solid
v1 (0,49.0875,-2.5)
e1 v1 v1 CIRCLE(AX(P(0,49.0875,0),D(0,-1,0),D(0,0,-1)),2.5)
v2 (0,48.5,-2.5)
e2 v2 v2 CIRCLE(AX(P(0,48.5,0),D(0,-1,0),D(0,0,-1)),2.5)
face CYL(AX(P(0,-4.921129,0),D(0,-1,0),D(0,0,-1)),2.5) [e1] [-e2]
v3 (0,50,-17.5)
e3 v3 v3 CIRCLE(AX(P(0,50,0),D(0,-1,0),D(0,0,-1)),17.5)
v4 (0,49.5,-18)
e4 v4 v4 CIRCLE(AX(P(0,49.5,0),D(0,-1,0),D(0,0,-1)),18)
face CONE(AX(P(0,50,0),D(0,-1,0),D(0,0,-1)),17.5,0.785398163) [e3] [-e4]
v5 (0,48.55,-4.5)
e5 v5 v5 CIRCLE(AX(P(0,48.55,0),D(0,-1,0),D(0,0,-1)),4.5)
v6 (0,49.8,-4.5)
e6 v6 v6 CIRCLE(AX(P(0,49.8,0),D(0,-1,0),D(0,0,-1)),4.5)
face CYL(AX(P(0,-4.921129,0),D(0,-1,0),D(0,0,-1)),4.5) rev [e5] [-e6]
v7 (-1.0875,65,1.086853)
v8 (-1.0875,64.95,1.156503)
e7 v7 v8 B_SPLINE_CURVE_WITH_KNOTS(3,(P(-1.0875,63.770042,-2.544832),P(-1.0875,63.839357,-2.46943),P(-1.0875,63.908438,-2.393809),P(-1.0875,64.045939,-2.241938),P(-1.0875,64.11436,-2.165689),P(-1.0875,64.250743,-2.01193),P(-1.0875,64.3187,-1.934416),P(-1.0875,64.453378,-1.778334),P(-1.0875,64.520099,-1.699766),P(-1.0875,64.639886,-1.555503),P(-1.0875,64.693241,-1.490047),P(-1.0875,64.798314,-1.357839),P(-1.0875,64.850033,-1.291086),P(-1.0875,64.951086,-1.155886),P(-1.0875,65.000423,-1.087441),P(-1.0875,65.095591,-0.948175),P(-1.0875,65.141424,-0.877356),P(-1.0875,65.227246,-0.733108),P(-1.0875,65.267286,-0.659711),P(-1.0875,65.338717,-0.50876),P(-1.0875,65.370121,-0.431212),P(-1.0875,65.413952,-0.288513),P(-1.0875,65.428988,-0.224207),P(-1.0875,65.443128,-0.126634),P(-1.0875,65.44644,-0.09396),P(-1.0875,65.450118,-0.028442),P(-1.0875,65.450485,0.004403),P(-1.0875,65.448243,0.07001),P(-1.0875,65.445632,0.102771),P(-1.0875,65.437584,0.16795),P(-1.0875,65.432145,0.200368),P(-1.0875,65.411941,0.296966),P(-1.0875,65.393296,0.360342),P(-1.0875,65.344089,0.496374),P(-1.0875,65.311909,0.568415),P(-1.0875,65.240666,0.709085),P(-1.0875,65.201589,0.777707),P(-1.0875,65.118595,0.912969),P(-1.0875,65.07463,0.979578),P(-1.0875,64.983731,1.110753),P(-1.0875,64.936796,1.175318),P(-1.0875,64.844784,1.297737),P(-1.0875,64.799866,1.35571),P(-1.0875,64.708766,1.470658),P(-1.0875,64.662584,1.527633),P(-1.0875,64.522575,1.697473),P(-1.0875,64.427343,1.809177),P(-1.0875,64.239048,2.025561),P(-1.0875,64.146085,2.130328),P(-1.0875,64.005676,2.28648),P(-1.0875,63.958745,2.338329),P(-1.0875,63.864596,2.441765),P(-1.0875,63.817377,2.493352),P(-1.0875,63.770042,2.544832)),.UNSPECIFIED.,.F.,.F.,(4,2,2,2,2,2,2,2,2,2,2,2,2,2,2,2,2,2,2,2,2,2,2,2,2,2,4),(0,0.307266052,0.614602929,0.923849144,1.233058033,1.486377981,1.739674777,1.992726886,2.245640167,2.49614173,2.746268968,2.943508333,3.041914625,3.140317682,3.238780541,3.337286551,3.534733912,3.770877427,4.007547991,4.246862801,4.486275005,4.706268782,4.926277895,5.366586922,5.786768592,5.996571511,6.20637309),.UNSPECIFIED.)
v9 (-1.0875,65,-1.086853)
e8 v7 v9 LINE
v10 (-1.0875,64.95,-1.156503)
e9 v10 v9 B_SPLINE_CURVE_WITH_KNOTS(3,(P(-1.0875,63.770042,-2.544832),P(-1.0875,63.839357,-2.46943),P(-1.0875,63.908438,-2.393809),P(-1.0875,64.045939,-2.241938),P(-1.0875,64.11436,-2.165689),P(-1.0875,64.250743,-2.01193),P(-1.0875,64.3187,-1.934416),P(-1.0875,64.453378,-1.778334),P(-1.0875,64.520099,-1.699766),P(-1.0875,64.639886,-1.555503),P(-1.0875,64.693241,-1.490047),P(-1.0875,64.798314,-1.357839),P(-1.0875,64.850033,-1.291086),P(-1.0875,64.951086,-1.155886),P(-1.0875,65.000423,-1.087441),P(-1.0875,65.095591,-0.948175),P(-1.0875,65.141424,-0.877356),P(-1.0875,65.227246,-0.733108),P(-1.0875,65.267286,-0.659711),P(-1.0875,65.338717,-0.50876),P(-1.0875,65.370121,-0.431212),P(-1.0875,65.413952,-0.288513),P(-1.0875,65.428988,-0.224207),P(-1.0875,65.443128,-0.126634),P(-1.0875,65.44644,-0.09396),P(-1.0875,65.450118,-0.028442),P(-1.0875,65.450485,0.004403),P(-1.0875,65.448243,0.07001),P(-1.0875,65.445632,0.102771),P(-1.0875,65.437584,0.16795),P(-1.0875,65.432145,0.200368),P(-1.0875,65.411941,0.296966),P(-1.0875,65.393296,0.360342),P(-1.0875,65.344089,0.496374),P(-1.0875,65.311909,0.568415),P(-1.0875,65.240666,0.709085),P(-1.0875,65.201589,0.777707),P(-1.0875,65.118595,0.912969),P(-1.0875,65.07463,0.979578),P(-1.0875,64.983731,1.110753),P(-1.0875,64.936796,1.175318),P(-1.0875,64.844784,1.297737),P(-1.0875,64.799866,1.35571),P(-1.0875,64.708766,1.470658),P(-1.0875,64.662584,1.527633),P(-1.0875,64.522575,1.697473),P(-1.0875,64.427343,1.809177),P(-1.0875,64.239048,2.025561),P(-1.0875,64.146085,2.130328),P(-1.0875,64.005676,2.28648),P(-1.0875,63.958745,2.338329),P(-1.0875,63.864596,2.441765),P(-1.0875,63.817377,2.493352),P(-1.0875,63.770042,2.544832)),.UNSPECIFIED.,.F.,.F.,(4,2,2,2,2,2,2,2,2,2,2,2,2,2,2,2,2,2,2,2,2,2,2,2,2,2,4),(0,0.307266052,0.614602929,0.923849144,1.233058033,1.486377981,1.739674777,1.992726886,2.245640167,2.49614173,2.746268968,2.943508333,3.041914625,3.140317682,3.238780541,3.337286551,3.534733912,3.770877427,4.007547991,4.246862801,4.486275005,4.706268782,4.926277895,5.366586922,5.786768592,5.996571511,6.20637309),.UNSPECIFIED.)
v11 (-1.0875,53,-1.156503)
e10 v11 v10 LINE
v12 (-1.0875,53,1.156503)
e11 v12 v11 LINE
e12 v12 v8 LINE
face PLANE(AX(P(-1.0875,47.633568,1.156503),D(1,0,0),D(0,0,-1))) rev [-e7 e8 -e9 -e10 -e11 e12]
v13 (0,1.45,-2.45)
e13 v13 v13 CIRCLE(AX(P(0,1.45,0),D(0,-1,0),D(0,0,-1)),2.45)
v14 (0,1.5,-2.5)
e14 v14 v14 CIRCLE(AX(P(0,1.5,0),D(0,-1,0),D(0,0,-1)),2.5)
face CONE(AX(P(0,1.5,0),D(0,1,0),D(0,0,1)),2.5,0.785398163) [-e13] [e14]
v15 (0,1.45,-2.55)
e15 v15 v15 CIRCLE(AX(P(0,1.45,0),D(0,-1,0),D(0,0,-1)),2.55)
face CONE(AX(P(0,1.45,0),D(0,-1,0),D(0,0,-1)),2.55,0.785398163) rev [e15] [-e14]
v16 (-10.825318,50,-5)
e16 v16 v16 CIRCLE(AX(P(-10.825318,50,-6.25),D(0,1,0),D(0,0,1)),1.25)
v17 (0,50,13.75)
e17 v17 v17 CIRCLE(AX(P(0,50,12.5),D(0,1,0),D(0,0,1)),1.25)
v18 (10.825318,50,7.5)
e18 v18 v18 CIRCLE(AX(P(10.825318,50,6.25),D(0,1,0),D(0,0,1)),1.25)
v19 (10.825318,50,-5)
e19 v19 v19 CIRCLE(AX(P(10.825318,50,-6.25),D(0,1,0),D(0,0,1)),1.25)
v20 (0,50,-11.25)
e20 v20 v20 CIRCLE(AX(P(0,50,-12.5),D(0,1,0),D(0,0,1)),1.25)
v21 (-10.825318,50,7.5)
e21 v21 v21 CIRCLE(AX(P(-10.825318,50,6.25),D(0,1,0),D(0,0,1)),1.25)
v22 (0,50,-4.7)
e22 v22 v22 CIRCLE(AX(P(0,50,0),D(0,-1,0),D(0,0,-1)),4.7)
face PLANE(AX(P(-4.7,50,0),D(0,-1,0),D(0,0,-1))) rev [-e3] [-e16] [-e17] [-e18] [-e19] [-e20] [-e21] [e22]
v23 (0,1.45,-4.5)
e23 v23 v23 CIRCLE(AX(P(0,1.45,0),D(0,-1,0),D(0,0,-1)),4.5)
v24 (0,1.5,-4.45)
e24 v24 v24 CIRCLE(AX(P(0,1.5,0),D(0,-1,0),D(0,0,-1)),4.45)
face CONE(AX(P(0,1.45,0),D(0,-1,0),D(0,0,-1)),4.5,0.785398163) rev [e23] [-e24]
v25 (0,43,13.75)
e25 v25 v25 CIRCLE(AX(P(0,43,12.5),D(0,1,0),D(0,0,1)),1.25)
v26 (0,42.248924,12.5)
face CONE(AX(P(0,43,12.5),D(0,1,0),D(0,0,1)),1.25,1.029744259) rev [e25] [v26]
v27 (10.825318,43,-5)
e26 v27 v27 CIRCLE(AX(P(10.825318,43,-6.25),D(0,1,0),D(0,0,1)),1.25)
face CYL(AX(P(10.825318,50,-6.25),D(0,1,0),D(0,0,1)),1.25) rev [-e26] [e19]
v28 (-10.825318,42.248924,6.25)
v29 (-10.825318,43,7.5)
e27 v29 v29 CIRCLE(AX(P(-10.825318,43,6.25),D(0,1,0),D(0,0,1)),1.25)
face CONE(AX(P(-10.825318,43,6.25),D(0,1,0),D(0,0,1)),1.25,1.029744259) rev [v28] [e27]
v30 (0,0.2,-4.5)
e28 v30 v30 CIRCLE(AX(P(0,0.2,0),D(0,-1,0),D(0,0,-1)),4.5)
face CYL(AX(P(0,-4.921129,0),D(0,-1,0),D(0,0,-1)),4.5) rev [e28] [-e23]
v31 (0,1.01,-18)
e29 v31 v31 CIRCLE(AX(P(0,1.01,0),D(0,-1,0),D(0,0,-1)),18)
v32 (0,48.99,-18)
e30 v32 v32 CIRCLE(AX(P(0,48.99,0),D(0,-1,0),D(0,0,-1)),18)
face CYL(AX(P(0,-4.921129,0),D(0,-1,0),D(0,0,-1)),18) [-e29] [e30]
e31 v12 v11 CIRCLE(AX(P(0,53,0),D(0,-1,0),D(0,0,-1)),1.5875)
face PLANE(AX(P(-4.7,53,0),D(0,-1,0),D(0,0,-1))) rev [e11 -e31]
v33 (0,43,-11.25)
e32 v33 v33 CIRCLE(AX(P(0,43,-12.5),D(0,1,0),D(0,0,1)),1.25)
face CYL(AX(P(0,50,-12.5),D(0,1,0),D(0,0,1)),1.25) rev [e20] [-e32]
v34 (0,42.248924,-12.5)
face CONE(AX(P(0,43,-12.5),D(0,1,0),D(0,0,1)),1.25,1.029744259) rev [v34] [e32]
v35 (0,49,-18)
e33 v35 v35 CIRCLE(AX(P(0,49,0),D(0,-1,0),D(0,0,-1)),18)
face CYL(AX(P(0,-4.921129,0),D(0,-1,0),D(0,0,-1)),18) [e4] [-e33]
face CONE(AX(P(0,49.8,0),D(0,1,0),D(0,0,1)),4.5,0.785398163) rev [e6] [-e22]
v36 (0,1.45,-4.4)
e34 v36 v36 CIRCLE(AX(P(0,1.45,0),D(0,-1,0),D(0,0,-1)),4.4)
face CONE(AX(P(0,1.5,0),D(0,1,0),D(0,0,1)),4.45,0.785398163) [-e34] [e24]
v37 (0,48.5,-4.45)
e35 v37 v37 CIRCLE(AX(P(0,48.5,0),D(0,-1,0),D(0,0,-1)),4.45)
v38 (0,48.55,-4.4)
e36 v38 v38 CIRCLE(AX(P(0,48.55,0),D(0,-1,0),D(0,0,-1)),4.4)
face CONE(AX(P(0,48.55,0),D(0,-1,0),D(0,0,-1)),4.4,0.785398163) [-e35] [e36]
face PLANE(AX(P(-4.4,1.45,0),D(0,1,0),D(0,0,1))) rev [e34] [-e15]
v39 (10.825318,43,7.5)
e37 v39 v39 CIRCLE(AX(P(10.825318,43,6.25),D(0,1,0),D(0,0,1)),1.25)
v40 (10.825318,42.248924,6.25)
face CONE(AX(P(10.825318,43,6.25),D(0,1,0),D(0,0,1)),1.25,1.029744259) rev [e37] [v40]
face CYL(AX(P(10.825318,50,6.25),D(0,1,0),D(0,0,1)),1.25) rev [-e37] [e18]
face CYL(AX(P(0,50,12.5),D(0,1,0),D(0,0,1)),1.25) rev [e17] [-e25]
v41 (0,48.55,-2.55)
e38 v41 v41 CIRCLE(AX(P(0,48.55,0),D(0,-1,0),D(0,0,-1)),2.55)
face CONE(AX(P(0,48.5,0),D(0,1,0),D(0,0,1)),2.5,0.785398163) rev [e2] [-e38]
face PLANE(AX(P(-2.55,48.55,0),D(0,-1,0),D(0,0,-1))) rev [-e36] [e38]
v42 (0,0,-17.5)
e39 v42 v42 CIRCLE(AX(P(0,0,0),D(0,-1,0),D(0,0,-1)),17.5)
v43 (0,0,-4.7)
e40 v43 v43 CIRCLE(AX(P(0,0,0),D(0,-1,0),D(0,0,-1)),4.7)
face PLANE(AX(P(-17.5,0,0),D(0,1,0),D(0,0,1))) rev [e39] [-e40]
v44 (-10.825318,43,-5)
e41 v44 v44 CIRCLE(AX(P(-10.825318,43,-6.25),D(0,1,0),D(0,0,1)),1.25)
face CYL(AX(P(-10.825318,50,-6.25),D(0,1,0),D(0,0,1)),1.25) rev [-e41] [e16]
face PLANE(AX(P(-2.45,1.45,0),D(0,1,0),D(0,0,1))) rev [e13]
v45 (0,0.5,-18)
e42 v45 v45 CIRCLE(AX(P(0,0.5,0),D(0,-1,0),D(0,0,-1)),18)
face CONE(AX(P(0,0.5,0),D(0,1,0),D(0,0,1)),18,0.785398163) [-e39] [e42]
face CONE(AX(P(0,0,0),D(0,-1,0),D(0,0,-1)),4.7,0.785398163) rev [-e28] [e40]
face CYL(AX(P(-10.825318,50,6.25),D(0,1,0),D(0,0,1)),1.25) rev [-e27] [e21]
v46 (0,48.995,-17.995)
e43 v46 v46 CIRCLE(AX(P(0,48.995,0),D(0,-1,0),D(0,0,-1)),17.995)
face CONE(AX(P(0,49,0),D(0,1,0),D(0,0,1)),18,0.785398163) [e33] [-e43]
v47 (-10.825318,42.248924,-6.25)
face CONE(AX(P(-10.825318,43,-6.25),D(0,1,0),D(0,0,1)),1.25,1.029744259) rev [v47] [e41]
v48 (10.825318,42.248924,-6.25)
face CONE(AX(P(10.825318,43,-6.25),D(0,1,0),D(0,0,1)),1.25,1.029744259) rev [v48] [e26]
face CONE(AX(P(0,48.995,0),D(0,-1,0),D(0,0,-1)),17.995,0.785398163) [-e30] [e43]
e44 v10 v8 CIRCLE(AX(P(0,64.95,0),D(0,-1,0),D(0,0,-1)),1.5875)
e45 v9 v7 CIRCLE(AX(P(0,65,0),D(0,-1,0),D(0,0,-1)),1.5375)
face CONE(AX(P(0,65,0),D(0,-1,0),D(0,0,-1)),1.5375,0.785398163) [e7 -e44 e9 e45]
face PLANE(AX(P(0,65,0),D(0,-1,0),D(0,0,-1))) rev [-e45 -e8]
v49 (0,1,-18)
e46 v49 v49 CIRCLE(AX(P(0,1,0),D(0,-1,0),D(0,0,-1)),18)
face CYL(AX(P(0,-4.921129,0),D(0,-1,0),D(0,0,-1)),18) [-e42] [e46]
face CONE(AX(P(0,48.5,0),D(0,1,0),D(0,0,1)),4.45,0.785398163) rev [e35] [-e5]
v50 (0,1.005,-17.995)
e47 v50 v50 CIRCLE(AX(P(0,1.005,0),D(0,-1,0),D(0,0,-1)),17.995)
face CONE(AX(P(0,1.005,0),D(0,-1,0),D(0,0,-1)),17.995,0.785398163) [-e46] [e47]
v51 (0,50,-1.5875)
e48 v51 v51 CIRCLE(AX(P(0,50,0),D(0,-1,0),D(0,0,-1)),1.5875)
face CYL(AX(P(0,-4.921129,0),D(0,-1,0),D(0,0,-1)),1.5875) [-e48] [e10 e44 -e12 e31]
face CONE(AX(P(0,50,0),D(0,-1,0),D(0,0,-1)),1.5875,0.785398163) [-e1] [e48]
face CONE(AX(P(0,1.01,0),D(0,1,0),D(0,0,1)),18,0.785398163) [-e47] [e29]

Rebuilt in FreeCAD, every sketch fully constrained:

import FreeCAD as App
import Part
import Sketcher
Q = App.Units.Quantity

doc = App.newDocument("Part")
body = doc.addObject("PartDesign::Body", "Body")

# Sketch on XY plane
sketch1 = doc.addObject("Sketcher::SketchObject", "Sketch")
body.addObject(sketch1)
sketch1.AttachmentSupport = (doc.XY_Plane, [""])
sketch1.MapMode = "FlatFace"
sketch1.addGeometry([
    Part.LineSegment(App.Vector(0, 65, 0), App.Vector(-1.5375, 65, 0)),  # 0
    Part.LineSegment(App.Vector(-1.5375, 65, 0), App.Vector(-1.5875, 64.95, 0)),  # 1
    Part.LineSegment(App.Vector(-1.5875, 64.95, 0), App.Vector(-1.5875, 50, 0)),  # 2
    Part.LineSegment(App.Vector(-1.5875, 50, 0), App.Vector(-2.5, 49.0875, 0)),  # 3
    Part.LineSegment(App.Vector(-2.5, 49.0875, 0), App.Vector(-2.5, 48.5, 0)),  # 4
    Part.LineSegment(App.Vector(-2.5, 48.5, 0), App.Vector(-2.55, 48.55, 0)),  # 5
    Part.LineSegment(App.Vector(-2.55, 48.55, 0), App.Vector(-4.4, 48.55, 0)),  # 6
    Part.LineSegment(App.Vector(-4.4, 48.55, 0), App.Vector(-4.45, 48.5, 0)),  # 7
    Part.LineSegment(App.Vector(-4.45, 48.5, 0), App.Vector(-4.5, 48.55, 0)),  # 8
    Part.LineSegment(App.Vector(-4.5, 48.55, 0), App.Vector(-4.5, 49.8, 0)),  # 9
    Part.LineSegment(App.Vector(-4.5, 49.8, 0), App.Vector(-4.7, 50, 0)),  # 10
    Part.LineSegment(App.Vector(-4.7, 50, 0), App.Vector(-17.5, 50, 0)),  # 11
    Part.LineSegment(App.Vector(-17.5, 50, 0), App.Vector(-18, 49.5, 0)),  # 12
    Part.LineSegment(App.Vector(-18, 49.5, 0), App.Vector(-18, 49, 0)),  # 13
    Part.LineSegment(App.Vector(-18, 49, 0), App.Vector(-17.995, 48.995, 0)),  # 14
    Part.LineSegment(App.Vector(-17.995, 48.995, 0), App.Vector(-18, 48.99, 0)),  # 15
    Part.LineSegment(App.Vector(-18, 48.99, 0), App.Vector(-18, 1.01, 0)),  # 16
    Part.LineSegment(App.Vector(-18, 1.01, 0), App.Vector(-17.995, 1.005, 0)),  # 17
    Part.LineSegment(App.Vector(-17.995, 1.005, 0), App.Vector(-18, 1, 0)),  # 18
    Part.LineSegment(App.Vector(-18, 1, 0), App.Vector(-18, 0.5, 0)),  # 19
    Part.LineSegment(App.Vector(-18, 0.5, 0), App.Vector(-17.5, 0, 0)),  # 20
    Part.LineSegment(App.Vector(-17.5, 0, 0), App.Vector(-4.7, 0, 0)),  # 21
    Part.LineSegment(App.Vector(-4.7, 0, 0), App.Vector(-4.5, 0.2, 0)),  # 22
    Part.LineSegment(App.Vector(-4.5, 0.2, 0), App.Vector(-4.5, 1.45, 0)),  # 23
    Part.LineSegment(App.Vector(-4.5, 1.45, 0), App.Vector(-4.45, 1.5, 0)),  # 24
    Part.LineSegment(App.Vector(-4.45, 1.5, 0), App.Vector(-4.4, 1.45, 0)),  # 25
    Part.LineSegment(App.Vector(-4.4, 1.45, 0), App.Vector(-2.55, 1.45, 0)),  # 26
    Part.LineSegment(App.Vector(-2.55, 1.45, 0), App.Vector(-2.5, 1.5, 0)),  # 27
    Part.LineSegment(App.Vector(-2.5, 1.5, 0), App.Vector(-2.45, 1.45, 0)),  # 28
    Part.LineSegment(App.Vector(-2.45, 1.45, 0), App.Vector(0, 1.45, 0)),  # 29
    Part.LineSegment(App.Vector(0, 1.45, 0), App.Vector(0, 65, 0)),  # 30
], False)
sketch1.addConstraint([
    Sketcher.Constraint("Coincident", 0, 2, 1, 1),
    Sketcher.Constraint("Coincident", 1, 2, 2, 1),
    Sketcher.Constraint("Coincident", 2, 2, 3, 1),
    Sketcher.Constraint("Coincident", 3, 2, 4, 1),
    Sketcher.Constraint("Coincident", 4, 2, 5, 1),
    Sketcher.Constraint("Coincident", 5, 2, 6, 1),
    Sketcher.Constraint("Coincident", 6, 2, 7, 1),
    Sketcher.Constraint("Coincident", 7, 2, 8, 1),
    Sketcher.Constraint("Coincident", 8, 2, 9, 1),
    Sketcher.Constraint("Coincident", 9, 2, 10, 1),
    Sketcher.Constraint("Coincident", 10, 2, 11, 1),
    Sketcher.Constraint("Coincident", 11, 2, 12, 1),
    Sketcher.Constraint("Coincident", 12, 2, 13, 1),
    Sketcher.Constraint("Coincident", 13, 2, 14, 1),
    Sketcher.Constraint("Coincident", 14, 2, 15, 1),
    Sketcher.Constraint("Coincident", 15, 2, 16, 1),
    Sketcher.Constraint("Coincident", 16, 2, 17, 1),
    Sketcher.Constraint("Coincident", 17, 2, 18, 1),
    Sketcher.Constraint("Coincident", 18, 2, 19, 1),
    Sketcher.Constraint("Coincident", 19, 2, 20, 1),
    Sketcher.Constraint("Coincident", 20, 2, 21, 1),
    Sketcher.Constraint("Coincident", 21, 2, 22, 1),
    Sketcher.Constraint("Coincident", 22, 2, 23, 1),
    Sketcher.Constraint("Coincident", 23, 2, 24, 1),
    Sketcher.Constraint("Coincident", 24, 2, 25, 1),
    Sketcher.Constraint("Coincident", 25, 2, 26, 1),
    Sketcher.Constraint("Coincident", 26, 2, 27, 1),
    Sketcher.Constraint("Coincident", 27, 2, 28, 1),
    Sketcher.Constraint("Coincident", 28, 2, 29, 1),
    Sketcher.Constraint("Coincident", 29, 2, 30, 1),
    Sketcher.Constraint("Coincident", 30, 2, 0, 1),
    Sketcher.Constraint("Horizontal", 0),
    Sketcher.Constraint("Vertical", 2),
    Sketcher.Constraint("Vertical", 4),
    Sketcher.Constraint("Horizontal", 6),
    Sketcher.Constraint("Vertical", 9),
    Sketcher.Constraint("Horizontal", 11),
    Sketcher.Constraint("Vertical", 13),
    Sketcher.Constraint("Vertical", 16),
    Sketcher.Constraint("Vertical", 19),
    Sketcher.Constraint("Horizontal", 21),
    Sketcher.Constraint("Vertical", 23),
    Sketcher.Constraint("Horizontal", 26),
    Sketcher.Constraint("Horizontal", 29),
    Sketcher.Constraint("Vertical", 30),
    Sketcher.Constraint("PointOnObject", 20, 2, -1),
    Sketcher.Constraint("PointOnObject", 29, 2, -2),
    Sketcher.Constraint("Parallel", 1, 3),
    Sketcher.Constraint("Perpendicular", 3, 5),
    Sketcher.Constraint("Perpendicular", 5, 7),
    Sketcher.Constraint("Perpendicular", 7, 8),
    Sketcher.Constraint("Parallel", 8, 10),
    Sketcher.Constraint("Perpendicular", 10, 12),
    Sketcher.Constraint("Perpendicular", 12, 14),
    Sketcher.Constraint("Perpendicular", 14, 15),
    Sketcher.Constraint("Perpendicular", 15, 17),
    Sketcher.Constraint("Perpendicular", 17, 18),
    Sketcher.Constraint("Perpendicular", 18, 20),
    Sketcher.Constraint("Perpendicular", 20, 22),
    Sketcher.Constraint("Parallel", 22, 24),
    Sketcher.Constraint("Perpendicular", 24, 25),
    Sketcher.Constraint("Perpendicular", 25, 27),
    Sketcher.Constraint("Perpendicular", 27, 28),
    Sketcher.Constraint("Horizontal", 4, 2, 7, 2),
    Sketcher.Constraint("Horizontal", 6, 2, 8, 2),
    Sketcher.Constraint("Horizontal", 2, 2, 10, 2),
    Sketcher.Constraint("Horizontal", 23, 2, 25, 2),
    Sketcher.Constraint("Horizontal", 24, 2, 27, 2),
    Sketcher.Constraint("Horizontal", 26, 2, 28, 2),
    Sketcher.Constraint("Vertical", 13, 2, 15, 2),
    Sketcher.Constraint("Vertical", 14, 2, 17, 2),
    Sketcher.Constraint("Vertical", 16, 2, 18, 2),
    Sketcher.Constraint("Vertical", 11, 2, 20, 2),
    Sketcher.Constraint("Vertical", 10, 2, 21, 2),
    Sketcher.Constraint("Vertical", 9, 2, 22, 2),
    Sketcher.Constraint("Vertical", 7, 2, 24, 2),
    Sketcher.Constraint("Vertical", 6, 2, 25, 2),
    Sketcher.Constraint("Vertical", 5, 2, 26, 2),
    Sketcher.Constraint("Equal", 13, 19),
    Sketcher.Constraint("Equal", 9, 23),
    Sketcher.Constraint("Equal", 1, 5),
    Sketcher.Constraint("DistanceX", 11, 2, 11, 1, 12.8),
    Sketcher.Constraint("DistanceY", 13, 2, 13, 1, 0.5),
    Sketcher.Constraint("DistanceY", -1, 1, 0, 2, 65.0),
    Sketcher.Constraint("DistanceY", -1, 1, 2, 2, 50.0),
    Sketcher.Constraint("DistanceX", 12, 2, -1, 1, 18.0),
    Sketcher.Constraint("DistanceY", -1, 1, 13, 2, 49.0),
    Sketcher.Constraint("DistanceX", 8, 2, 4, 2, 2.0),
    Sketcher.Constraint("DistanceX", 11, 2, 9, 2, 13.0),
    Sketcher.Constraint("DistanceY", 7, 2, 12, 2, 1.0),
    Sketcher.Constraint("DistanceX", 6, 2, 6, 1, 1.85),
    Sketcher.Constraint("DistanceY", 16, 2, 16, 1, 47.98),
    Sketcher.Constraint("DistanceX", 0, 2, 0, 1, 1.5375),
])
revolution = doc.addObject("PartDesign::Revolution", "Revolution")
body.addObject(revolution)
revolution.Profile = sketch1
revolution.ReferenceAxis = (sketch1, ["V_Axis"])
revolution.Angle = 360

# Sketch on XZ plane
sketch2 = doc.addObject("Sketcher::SketchObject", "Sketch001")
body.addObject(sketch2)
sketch2.AttachmentSupport = (doc.XZ_Plane, [""])
sketch2.MapMode = "FlatFace"
sketch2.AttachmentOffset = App.Placement(App.Vector(0, 0, -65), App.Rotation())
sketch2.addGeometry([
    Part.LineSegment(App.Vector(-1.5875, -1.156503, 0), App.Vector(-1.5875, 1.156503, 0)),
    Part.LineSegment(App.Vector(-1.5875, 1.156503, 0), App.Vector(-1.0875, 1.156503, 0)),
    Part.LineSegment(App.Vector(-1.0875, 1.156503, 0), App.Vector(-1.0875, -1.156503, 0)),
    Part.LineSegment(App.Vector(-1.0875, -1.156503, 0), App.Vector(-1.5875, -1.156503, 0)),
], False)
sketch2.addConstraint([
    Sketcher.Constraint("Coincident", 0, 2, 1, 1),
    Sketcher.Constraint("Coincident", 1, 2, 2, 1),
    Sketcher.Constraint("Coincident", 2, 2, 3, 1),
    Sketcher.Constraint("Coincident", 3, 2, 0, 1),
    Sketcher.Constraint("Vertical", 0),
    Sketcher.Constraint("Horizontal", 1),
    Sketcher.Constraint("Vertical", 2),
    Sketcher.Constraint("Horizontal", 3),
    Sketcher.Constraint("DistanceX", 1, 1, 1, 2, 0.5),
    Sketcher.Constraint("DistanceX", 0, 2, -1, 1, 1.5875),
    Sketcher.Constraint("DistanceY", 0, 1, 0, 2, 2.313007),
    Sketcher.Constraint("DistanceY", -1, 1, 0, 2, 1.156503),
])
pocket1 = doc.addObject("PartDesign::Pocket", "Pocket")
body.addObject(pocket1)
pocket1.Profile = sketch2
pocket1.Length = 12
pocket1.Reversed = True

# Sketch on YZ plane
sketch3 = doc.addObject("Sketcher::SketchObject", "Sketch002")
body.addObject(sketch3)
sketch3.AttachmentSupport = (doc.YZ_Plane, [""])
sketch3.MapMode = "FlatFace"
sketch3.addGeometry([
    Part.LineSegment(App.Vector(42.248924, -12.5, 0), App.Vector(50, -12.5, 0)),
    Part.LineSegment(App.Vector(50, -12.5, 0), App.Vector(50, -11.25, 0)),
    Part.LineSegment(App.Vector(50, -11.25, 0), App.Vector(43, -11.25, 0)),
    Part.LineSegment(App.Vector(43, -11.25, 0), App.Vector(42.248924, -12.5, 0)),
], False)
sketch3.addGeometry(Part.LineSegment(App.Vector(50, -12.5, 0), App.Vector(42.248924, -12.5, 0)), True)  # axis
sketch3.addConstraint([
    Sketcher.Constraint("Coincident", 0, 2, 1, 1),
    Sketcher.Constraint("Coincident", 1, 2, 2, 1),
    Sketcher.Constraint("Coincident", 2, 2, 3, 1),
    Sketcher.Constraint("Coincident", 3, 2, 0, 1),
    Sketcher.Constraint("Horizontal", 0),
    Sketcher.Constraint("Vertical", 1),
    Sketcher.Constraint("Horizontal", 2),
    Sketcher.Constraint("Horizontal", 4),
    Sketcher.Constraint("Coincident", 4, 1, 0, 2),
    Sketcher.Constraint("Equal", 0, 4),
    Sketcher.Constraint("DistanceX", 2, 2, 2, 1, 7.0),
    Sketcher.Constraint("Angle", 3, Q("-121 deg")),
    Sketcher.Constraint("DistanceX", -1, 1, 0, 2, 50.0),
    Sketcher.Constraint("DistanceY", 1, 1, 1, 2, 1.25),
    Sketcher.Constraint("DistanceY", 0, 2, -1, 1, 12.5),
])
groove = doc.addObject("PartDesign::Groove", "Groove")
body.addObject(groove)
groove.Profile = sketch3
groove.ReferenceAxis = (sketch3, ["Axis0"])
groove.Angle = 360
doc.recompute()

polarpattern = doc.addObject("PartDesign::PolarPattern", "PolarPattern")
body.addObject(polarpattern)
polarpattern.Originals = [groove]
polarpattern.Axis = (doc.Y_Axis, [""])
polarpattern.Angle = 360
polarpattern.Occurrences = 6
body.Tip = polarpattern

doc.recompute()
